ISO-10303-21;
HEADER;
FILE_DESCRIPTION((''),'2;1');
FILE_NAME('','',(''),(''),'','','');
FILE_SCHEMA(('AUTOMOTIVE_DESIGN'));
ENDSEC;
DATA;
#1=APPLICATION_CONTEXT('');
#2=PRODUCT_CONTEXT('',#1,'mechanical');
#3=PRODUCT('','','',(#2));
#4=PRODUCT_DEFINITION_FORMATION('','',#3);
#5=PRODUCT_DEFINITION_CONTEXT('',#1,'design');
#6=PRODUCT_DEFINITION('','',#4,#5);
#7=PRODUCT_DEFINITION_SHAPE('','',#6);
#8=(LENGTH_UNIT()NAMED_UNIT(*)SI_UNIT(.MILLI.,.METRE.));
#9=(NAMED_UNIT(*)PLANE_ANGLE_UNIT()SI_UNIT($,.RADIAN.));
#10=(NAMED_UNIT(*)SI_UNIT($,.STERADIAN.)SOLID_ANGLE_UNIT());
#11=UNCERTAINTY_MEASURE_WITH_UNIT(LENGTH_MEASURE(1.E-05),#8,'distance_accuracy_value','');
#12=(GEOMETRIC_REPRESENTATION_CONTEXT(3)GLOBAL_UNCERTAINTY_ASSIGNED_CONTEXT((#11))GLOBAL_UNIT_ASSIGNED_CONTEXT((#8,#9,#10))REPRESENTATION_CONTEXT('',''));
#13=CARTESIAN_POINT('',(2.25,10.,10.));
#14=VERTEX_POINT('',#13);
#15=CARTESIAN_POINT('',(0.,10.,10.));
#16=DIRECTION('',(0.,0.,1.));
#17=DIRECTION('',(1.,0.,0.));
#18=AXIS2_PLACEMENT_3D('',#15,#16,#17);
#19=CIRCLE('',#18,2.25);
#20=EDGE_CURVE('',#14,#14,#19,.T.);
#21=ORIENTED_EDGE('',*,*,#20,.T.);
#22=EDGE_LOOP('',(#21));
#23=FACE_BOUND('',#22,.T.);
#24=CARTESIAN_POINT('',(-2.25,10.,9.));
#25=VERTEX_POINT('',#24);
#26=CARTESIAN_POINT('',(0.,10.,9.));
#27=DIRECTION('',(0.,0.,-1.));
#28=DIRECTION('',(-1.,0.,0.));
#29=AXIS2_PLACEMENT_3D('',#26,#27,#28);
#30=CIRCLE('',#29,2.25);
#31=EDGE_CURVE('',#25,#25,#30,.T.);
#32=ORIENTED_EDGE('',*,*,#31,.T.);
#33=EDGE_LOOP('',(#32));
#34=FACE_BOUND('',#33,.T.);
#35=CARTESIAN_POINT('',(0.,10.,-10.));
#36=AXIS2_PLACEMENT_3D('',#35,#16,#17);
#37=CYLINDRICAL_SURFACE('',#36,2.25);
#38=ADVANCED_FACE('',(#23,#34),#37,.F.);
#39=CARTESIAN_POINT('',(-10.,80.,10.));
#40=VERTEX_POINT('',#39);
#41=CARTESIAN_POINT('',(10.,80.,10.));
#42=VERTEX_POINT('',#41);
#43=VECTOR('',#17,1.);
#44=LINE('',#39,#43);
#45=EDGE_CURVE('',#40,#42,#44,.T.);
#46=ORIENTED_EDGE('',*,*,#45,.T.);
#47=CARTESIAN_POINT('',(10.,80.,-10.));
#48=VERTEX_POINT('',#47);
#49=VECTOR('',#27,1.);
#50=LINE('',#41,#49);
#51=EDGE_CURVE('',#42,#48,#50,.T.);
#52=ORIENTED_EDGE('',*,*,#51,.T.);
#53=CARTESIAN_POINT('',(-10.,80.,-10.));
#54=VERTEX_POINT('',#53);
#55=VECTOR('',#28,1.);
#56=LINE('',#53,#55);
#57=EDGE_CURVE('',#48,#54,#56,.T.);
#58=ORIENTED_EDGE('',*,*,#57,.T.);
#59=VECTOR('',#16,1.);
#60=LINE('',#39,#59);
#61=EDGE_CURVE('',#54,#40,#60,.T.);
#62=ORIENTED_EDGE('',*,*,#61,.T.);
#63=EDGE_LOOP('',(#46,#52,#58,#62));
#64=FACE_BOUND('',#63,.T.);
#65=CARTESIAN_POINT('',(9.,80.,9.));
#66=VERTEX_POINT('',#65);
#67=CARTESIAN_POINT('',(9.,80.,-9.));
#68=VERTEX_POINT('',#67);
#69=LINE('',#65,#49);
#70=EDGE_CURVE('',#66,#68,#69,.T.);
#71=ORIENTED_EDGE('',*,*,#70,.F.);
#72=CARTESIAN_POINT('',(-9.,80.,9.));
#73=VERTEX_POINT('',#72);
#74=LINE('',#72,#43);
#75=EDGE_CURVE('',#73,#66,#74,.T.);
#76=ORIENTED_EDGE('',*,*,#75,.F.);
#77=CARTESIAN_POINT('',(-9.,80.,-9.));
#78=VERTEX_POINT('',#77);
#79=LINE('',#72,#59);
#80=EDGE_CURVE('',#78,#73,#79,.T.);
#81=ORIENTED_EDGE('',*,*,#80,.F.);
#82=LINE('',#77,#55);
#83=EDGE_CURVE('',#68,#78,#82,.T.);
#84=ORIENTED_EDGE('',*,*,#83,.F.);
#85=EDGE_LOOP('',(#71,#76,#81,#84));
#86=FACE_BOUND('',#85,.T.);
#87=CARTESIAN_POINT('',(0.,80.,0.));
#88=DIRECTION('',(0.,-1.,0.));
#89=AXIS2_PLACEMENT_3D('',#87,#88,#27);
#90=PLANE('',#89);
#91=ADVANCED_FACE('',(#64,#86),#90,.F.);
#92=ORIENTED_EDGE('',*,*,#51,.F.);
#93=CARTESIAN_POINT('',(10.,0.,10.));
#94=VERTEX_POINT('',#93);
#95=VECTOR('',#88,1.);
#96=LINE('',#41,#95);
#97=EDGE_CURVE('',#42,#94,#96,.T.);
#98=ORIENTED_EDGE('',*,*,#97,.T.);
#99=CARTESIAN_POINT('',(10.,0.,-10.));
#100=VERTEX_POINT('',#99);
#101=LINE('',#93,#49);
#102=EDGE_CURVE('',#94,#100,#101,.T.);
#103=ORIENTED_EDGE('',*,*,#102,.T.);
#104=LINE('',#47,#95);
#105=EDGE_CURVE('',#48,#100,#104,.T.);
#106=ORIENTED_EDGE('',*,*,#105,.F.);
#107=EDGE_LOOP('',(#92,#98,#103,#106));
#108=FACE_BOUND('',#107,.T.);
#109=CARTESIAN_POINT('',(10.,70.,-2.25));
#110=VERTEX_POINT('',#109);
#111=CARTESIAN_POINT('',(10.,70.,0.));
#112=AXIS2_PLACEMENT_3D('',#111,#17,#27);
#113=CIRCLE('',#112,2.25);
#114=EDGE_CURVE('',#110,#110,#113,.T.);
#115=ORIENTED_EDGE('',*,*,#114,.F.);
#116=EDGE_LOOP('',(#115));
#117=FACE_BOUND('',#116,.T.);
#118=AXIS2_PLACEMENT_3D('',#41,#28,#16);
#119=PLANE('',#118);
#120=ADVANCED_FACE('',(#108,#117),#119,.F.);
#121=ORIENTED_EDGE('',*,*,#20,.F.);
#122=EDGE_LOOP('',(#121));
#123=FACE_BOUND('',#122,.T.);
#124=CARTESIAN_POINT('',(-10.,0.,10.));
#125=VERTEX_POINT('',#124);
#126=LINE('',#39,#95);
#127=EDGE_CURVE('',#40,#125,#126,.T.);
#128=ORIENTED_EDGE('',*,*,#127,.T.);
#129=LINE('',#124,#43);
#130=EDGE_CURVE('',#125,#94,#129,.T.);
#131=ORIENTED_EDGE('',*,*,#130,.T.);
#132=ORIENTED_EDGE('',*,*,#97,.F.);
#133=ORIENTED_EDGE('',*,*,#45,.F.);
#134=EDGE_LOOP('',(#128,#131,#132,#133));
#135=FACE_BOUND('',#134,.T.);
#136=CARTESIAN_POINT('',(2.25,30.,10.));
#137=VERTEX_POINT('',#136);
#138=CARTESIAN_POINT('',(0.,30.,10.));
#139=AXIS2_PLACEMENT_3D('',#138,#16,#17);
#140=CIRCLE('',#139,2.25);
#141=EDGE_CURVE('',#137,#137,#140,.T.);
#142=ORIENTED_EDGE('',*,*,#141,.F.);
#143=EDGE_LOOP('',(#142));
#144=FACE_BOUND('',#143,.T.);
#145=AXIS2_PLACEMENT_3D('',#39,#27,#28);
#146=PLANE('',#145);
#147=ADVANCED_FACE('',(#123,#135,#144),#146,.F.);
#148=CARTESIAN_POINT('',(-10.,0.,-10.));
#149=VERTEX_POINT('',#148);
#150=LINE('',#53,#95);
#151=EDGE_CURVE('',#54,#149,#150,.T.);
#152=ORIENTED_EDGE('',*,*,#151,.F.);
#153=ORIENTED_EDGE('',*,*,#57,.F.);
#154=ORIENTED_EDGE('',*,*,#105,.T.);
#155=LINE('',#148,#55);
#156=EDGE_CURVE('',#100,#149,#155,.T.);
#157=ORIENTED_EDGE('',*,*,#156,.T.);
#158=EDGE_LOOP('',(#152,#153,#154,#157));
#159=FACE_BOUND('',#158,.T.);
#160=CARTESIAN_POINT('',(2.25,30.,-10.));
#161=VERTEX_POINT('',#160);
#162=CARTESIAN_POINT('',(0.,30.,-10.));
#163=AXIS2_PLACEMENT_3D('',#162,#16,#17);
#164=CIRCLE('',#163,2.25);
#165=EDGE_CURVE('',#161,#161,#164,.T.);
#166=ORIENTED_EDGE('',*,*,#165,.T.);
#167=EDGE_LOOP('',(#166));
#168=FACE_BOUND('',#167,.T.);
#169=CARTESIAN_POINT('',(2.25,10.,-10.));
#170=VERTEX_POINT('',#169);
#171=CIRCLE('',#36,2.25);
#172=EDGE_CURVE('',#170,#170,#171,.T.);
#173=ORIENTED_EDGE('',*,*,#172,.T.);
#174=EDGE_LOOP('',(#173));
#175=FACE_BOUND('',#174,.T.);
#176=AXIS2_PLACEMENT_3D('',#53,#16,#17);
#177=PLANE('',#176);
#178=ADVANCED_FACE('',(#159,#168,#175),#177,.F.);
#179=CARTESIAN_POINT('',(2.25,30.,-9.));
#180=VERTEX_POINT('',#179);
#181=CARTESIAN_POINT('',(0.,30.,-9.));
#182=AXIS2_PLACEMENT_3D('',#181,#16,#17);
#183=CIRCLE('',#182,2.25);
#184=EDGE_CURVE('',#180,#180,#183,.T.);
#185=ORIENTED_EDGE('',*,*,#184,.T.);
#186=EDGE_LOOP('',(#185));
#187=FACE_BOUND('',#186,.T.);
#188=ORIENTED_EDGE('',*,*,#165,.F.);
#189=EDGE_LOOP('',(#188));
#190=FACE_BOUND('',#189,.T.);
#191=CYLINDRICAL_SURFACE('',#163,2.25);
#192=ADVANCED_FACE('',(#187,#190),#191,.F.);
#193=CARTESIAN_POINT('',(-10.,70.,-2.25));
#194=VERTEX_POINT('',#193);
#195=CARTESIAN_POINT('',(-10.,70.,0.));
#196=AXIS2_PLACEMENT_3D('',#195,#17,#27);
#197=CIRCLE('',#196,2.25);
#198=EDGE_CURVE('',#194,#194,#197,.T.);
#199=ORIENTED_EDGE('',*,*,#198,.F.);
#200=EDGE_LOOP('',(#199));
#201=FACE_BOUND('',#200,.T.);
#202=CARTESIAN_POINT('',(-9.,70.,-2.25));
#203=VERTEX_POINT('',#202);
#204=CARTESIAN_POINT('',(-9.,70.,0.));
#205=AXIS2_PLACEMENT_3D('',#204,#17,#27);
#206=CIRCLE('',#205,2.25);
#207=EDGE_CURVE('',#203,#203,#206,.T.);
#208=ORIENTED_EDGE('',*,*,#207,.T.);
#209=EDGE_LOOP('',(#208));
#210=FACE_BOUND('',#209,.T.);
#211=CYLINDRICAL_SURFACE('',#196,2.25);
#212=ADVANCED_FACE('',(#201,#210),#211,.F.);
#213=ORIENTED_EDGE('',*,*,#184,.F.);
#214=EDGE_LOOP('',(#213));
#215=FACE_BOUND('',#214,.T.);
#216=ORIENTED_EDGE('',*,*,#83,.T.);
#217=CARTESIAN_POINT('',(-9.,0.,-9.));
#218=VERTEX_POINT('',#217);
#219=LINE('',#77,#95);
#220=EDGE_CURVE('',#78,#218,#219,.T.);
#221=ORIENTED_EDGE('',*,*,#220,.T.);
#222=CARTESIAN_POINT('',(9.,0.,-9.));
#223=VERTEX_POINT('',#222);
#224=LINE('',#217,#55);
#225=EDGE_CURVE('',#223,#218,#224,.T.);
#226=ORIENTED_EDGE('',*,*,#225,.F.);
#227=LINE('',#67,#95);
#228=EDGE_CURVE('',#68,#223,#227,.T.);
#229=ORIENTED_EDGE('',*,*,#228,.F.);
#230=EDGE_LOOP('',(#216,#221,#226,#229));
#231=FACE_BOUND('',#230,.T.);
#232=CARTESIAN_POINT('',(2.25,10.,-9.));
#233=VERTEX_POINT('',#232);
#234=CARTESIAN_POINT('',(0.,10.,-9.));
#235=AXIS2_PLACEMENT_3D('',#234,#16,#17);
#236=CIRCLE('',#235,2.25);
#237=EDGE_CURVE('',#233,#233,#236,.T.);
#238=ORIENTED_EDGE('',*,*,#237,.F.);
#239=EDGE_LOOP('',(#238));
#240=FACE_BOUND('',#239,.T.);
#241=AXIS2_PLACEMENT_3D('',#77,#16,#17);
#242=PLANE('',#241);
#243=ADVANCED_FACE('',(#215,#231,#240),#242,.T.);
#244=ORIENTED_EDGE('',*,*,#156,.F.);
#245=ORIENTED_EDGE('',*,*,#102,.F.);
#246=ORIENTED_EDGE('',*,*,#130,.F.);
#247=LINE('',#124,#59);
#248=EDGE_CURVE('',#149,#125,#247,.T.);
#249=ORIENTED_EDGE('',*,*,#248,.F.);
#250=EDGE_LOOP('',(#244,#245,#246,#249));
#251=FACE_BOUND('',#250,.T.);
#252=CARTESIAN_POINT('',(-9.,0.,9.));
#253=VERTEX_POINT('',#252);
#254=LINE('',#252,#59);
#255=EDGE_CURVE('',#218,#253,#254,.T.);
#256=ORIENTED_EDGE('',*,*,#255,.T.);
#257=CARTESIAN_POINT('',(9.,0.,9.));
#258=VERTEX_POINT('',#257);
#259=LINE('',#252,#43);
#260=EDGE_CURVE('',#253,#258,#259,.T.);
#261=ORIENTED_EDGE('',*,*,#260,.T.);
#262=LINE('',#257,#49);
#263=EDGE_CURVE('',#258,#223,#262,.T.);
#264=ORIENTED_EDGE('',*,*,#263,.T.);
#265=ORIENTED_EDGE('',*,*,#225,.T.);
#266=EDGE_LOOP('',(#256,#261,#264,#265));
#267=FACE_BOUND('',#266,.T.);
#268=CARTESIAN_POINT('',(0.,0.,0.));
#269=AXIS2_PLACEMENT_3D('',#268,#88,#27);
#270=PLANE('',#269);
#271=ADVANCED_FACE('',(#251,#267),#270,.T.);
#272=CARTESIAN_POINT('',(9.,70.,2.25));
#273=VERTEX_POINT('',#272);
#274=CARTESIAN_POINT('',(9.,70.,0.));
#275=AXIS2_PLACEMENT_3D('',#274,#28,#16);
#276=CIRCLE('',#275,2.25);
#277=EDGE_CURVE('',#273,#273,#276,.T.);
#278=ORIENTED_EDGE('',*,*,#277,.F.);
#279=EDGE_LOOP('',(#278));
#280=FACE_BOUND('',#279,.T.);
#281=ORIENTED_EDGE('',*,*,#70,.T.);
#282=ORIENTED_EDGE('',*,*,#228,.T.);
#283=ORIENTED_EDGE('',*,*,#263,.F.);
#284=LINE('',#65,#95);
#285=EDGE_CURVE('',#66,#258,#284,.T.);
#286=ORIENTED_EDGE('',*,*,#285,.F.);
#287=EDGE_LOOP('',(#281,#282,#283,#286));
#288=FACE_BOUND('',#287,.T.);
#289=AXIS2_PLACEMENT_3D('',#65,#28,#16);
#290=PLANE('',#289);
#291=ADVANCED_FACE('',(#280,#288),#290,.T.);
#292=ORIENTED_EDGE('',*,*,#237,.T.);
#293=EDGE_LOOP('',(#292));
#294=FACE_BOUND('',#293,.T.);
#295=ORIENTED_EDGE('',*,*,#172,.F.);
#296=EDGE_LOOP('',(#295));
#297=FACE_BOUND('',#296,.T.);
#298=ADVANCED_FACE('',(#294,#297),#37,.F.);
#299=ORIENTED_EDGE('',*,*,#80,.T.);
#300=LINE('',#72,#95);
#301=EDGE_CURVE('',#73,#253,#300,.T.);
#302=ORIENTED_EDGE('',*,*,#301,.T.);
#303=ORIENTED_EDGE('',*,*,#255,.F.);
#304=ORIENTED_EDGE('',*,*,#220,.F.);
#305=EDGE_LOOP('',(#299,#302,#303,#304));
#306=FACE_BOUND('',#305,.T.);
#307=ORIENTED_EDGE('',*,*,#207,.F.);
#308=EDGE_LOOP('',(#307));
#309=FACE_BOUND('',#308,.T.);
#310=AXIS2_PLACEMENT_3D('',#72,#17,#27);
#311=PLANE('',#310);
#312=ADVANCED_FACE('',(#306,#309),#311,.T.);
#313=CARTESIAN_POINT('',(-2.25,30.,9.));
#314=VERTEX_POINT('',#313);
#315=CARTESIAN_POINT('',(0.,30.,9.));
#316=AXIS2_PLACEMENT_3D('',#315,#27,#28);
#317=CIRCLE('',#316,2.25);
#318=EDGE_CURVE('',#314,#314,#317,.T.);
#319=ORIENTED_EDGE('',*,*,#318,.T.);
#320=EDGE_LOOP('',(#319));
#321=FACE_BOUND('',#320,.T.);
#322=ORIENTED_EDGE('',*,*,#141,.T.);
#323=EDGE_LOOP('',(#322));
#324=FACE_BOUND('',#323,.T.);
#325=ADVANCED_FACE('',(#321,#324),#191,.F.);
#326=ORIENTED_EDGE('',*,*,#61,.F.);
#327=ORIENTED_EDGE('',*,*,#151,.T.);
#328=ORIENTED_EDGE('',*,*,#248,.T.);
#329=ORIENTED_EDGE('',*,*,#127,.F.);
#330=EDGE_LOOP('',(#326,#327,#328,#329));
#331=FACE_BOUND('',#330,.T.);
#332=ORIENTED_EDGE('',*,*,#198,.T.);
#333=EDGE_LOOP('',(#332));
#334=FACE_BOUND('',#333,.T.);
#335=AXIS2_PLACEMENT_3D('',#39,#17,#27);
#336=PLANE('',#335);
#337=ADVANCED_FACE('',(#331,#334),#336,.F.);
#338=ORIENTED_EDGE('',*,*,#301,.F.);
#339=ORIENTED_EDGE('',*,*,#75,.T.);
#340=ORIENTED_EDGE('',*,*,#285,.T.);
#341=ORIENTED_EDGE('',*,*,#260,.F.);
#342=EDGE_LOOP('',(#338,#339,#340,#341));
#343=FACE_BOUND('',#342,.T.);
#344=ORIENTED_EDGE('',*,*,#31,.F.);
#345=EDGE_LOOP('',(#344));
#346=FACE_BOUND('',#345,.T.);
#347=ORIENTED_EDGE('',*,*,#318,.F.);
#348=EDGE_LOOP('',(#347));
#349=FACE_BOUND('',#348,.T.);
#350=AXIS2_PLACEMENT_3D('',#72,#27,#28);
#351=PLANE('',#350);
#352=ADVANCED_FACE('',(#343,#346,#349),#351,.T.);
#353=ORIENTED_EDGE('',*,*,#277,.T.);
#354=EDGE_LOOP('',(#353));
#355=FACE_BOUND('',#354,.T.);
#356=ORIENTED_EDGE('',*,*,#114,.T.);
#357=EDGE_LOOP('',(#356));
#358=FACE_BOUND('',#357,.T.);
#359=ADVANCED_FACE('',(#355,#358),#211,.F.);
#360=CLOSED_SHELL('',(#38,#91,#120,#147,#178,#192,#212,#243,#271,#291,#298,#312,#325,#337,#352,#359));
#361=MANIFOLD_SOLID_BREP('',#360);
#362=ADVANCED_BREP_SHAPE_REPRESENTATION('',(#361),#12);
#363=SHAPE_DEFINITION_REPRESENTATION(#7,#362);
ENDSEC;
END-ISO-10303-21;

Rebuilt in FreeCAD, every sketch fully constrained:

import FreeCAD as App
import Part
import Sketcher

V = App.Vector


def add_polygon(sketch, points):
    """Adds a closed chain of lines whose ends are joined by coincident constraints."""
    first, n = sketch.GeometryCount, len(points)
    for a, b in zip(points, points[1:] + points[:1]):
        sketch.addGeometry(Part.LineSegment(App.Vector(*a, 0), App.Vector(*b, 0)), False)
    for i in range(n):
        sketch.addConstraint(Sketcher.Constraint("Coincident", first + i, 2, first + (i + 1) % n, 1))

doc = App.newDocument("Part")
params = doc.addObject("Spreadsheet::Sheet", "Params")
for row, (alias, value) in enumerate([
    ("sketch1_width", "20 mm"),
    ("sketch1_width2", "18 mm"),
    ("pad1_length", "80 mm"),
    ("sketch2_diameter", "4.5 mm"),
    ("sketch3_diameter", "4.5 mm"),
], start=1):
    params.set(f"A{row}", alias)
    params.set(f"B{row}", "=" + value)
    params.setAlias(f"B{row}", alias)

body = doc.addObject("PartDesign::Body", "Body")

sketch1 = doc.addObject("Sketcher::SketchObject", "Sketch")
body.addObject(sketch1)
sketch1.AttachmentSupport = (doc.XZ_Plane, [""])
sketch1.MapMode = "FlatFace"
add_polygon(sketch1, [(-10, -10), (-10, 10), (10, 10), (10, -10)])
add_polygon(sketch1, [(9, 9), (-9, 9), (-9, -9), (9, -9)])
sketch1.addConstraint([
    Sketcher.Constraint("Vertical", 0),
    Sketcher.Constraint("Horizontal", 1),
    Sketcher.Constraint("Vertical", 2),
    Sketcher.Constraint("Horizontal", 3),
    Sketcher.Constraint("Horizontal", 4),
    Sketcher.Constraint("Vertical", 5),
    Sketcher.Constraint("Horizontal", 6),
    Sketcher.Constraint("Vertical", 7),
    Sketcher.Constraint("Symmetric", 0, 2, 2, 2, -1, 1),
    Sketcher.Constraint("Symmetric", 4, 2, 6, 2, -1, 1),
    Sketcher.Constraint("Equal", 3, 0),
    Sketcher.Constraint("Equal", 6, 5),
    Sketcher.Constraint("DistanceX", 1, 1, 1, 2, 20.0),
    Sketcher.Constraint("DistanceX", 4, 2, 4, 1, 18.0),
])
sketch1.setExpression("Constraints[20]", "Params.sketch1_width")
sketch1.setExpression("Constraints[21]", "Params.sketch1_width2")
pad1 = doc.addObject("PartDesign::Pad", "Pad")
body.addObject(pad1)
pad1.Profile = sketch1
pad1.setExpression("Length", "Params.pad1_length")
pad1.Reversed = True

sketch2 = doc.addObject("Sketcher::SketchObject", "Sketch001")
body.addObject(sketch2)
sketch2.AttachmentSupport = (doc.XY_Plane, [""])
sketch2.MapMode = "FlatFace"
sketch2.AttachmentOffset = App.Placement(V(0, 0, 10), App.Rotation())
sketch2.addGeometry([
    Part.Circle(V(0, 10, 0), V(0, 0, 1), 2.2),
    Part.Circle(V(0, 30, 0), V(0, 0, 1), 2.2),
], False)
sketch2.addConstraint([
    Sketcher.Constraint("Equal", 0, 1),
    Sketcher.Constraint("PointOnObject", 0, 3, -2),
    Sketcher.Constraint("PointOnObject", 1, 3, -2),
    Sketcher.Constraint("Diameter", 0, 4.5),
    Sketcher.Constraint("DistanceY", -1, 1, 0, 3, 10.0),
    Sketcher.Constraint("DistanceY", -1, 1, 1, 3, 30.0),
])
sketch2.setExpression("Constraints[3]", "Params.sketch2_diameter")
pocket1 = doc.addObject("PartDesign::Pocket", "Pocket")
body.addObject(pocket1)
pocket1.Profile = sketch2
pocket1.Type = "ThroughAll"

sketch3 = doc.addObject("Sketcher::SketchObject", "Sketch002")
body.addObject(sketch3)
sketch3.AttachmentSupport = (doc.YZ_Plane, [""])
sketch3.MapMode = "FlatFace"
sketch3.AttachmentOffset = App.Placement(V(0, 0, 10), App.Rotation())
sketch3.addGeometry(Part.Circle(V(70, 0, 0), V(0, 0, 1), 2.2), False)
sketch3.addConstraint([
    Sketcher.Constraint("PointOnObject", 0, 3, -1),
    Sketcher.Constraint("Diameter", 0, 4.5),
    Sketcher.Constraint("DistanceX", -1, 1, 0, 3, 70.0),
])
sketch3.setExpression("Constraints[1]", "Params.sketch3_diameter")
pocket2 = doc.addObject("PartDesign::Pocket", "Pocket001")
body.addObject(pocket2)
pocket2.Profile = sketch3
pocket2.Type = "ThroughAll"

doc.recompute()
